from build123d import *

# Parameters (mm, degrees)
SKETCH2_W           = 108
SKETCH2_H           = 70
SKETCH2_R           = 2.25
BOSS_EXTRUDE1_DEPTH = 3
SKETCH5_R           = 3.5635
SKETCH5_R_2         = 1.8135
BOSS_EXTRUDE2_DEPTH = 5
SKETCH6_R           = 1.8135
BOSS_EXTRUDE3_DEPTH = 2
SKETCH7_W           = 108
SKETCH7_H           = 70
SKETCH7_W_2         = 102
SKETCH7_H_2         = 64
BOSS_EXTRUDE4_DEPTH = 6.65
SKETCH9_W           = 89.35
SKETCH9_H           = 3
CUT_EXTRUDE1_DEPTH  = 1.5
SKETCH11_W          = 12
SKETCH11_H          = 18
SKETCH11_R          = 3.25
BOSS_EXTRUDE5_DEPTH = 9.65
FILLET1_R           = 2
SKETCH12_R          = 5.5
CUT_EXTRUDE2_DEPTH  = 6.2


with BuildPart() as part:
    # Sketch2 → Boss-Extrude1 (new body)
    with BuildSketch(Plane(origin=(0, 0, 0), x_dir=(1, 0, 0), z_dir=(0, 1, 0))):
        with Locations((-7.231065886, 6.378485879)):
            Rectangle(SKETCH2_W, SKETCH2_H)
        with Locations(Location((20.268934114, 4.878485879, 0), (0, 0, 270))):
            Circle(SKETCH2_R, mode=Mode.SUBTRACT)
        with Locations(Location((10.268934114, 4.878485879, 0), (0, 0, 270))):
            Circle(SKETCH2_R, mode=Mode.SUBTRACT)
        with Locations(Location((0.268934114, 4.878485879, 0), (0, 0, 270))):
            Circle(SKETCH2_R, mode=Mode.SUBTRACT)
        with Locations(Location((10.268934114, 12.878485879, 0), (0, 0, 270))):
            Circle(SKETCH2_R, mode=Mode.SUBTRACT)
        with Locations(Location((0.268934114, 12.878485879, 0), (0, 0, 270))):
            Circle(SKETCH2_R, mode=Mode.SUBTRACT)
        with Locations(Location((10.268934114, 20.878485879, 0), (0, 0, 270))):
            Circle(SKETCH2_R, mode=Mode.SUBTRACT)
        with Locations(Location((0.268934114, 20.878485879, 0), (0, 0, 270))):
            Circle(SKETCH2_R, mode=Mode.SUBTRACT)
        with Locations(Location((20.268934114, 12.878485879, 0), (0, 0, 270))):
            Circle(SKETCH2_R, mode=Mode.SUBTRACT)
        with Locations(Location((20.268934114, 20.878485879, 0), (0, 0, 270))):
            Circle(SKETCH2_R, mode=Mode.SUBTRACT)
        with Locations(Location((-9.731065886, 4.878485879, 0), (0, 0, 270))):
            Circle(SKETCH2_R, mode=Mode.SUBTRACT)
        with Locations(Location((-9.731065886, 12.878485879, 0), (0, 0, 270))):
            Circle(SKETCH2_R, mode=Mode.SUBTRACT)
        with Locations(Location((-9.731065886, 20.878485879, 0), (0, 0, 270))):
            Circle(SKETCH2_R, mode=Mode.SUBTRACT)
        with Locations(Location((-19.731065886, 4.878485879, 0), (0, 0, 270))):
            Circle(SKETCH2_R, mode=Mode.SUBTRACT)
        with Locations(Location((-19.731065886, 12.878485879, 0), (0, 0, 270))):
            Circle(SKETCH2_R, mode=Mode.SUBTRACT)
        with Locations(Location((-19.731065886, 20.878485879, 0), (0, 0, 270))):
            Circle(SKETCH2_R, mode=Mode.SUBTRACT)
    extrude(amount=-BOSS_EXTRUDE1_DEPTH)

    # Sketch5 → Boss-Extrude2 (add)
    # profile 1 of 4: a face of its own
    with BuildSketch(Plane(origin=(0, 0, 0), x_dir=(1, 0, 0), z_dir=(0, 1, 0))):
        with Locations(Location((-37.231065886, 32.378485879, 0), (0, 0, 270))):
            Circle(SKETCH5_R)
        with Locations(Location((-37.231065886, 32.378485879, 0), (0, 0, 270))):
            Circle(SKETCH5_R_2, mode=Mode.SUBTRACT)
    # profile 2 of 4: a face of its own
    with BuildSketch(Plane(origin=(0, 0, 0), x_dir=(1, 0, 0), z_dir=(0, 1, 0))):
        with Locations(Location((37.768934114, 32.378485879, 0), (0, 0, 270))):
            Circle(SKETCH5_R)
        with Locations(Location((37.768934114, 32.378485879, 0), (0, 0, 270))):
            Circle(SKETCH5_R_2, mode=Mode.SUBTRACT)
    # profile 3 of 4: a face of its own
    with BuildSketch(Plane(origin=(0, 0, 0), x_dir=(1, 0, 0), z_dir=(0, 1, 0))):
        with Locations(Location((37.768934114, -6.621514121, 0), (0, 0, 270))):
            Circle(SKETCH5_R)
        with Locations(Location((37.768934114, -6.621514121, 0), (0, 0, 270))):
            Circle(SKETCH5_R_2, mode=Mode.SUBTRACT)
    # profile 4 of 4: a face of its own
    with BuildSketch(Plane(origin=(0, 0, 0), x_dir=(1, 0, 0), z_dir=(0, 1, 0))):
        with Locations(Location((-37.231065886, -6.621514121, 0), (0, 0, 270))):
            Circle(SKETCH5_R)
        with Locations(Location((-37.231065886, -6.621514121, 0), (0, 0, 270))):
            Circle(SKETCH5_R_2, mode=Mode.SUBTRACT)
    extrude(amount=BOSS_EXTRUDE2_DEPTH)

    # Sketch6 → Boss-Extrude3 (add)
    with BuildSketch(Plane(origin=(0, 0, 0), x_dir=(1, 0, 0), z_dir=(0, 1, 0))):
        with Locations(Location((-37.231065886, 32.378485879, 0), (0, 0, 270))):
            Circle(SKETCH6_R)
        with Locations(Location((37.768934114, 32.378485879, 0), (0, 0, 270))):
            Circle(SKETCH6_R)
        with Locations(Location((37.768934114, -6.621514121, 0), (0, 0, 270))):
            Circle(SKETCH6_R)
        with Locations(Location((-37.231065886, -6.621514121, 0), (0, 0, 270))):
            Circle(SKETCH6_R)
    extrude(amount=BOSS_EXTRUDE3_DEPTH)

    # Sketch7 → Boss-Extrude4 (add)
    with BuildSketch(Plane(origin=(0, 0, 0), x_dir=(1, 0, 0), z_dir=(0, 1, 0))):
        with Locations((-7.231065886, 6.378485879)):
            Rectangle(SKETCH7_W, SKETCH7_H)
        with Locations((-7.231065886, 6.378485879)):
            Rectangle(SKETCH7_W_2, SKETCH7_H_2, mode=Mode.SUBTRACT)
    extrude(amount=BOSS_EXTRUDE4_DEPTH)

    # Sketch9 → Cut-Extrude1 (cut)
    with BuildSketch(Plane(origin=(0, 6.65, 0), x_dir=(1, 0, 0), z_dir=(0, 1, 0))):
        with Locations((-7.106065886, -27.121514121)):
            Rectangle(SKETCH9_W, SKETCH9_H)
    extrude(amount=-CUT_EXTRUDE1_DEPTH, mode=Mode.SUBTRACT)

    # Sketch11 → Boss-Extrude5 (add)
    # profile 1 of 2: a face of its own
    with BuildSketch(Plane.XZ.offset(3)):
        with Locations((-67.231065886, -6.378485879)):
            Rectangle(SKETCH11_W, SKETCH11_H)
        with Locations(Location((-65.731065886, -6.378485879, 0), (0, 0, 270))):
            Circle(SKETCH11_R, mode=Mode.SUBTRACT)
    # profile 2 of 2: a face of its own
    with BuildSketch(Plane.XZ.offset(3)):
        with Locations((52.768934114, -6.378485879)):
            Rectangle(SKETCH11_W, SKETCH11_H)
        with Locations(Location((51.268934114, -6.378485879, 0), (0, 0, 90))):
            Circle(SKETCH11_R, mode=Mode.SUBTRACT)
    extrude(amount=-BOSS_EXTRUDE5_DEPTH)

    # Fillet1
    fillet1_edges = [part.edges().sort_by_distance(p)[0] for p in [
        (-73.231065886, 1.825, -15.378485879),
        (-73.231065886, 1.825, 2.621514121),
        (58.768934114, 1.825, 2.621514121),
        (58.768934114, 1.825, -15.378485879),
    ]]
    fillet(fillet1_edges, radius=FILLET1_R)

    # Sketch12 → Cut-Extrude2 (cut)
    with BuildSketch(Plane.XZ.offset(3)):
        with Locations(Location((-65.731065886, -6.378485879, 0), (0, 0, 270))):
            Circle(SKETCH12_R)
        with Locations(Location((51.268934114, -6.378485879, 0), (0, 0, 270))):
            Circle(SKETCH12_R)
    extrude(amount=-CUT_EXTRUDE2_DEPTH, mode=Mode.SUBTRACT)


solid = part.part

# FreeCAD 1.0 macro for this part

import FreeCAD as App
import Part
import Sketcher


def edges_at(feature, points):
    """Names of the edges that pass closest to the given points."""
    edges = feature.Shape.Edges
    near = lambda p: min(range(len(edges)), key=lambda i: edges[i].distToShape(Part.Vertex(*p))[0])
    return sorted({f"Edge{near(p) + 1}" for p in points})


def add_polygon(sketch, points):
    """Adds a closed chain of lines whose ends are joined by coincident constraints."""
    first, n = sketch.GeometryCount, len(points)
    for a, b in zip(points, points[1:] + points[:1]):
        sketch.addGeometry(Part.LineSegment(App.Vector(*a, 0), App.Vector(*b, 0)), False)
    for i in range(n):
        sketch.addConstraint(Sketcher.Constraint("Coincident", first + i, 2, first + (i + 1) % n, 1))

doc = App.newDocument("Part")
body = doc.addObject("PartDesign::Body", "Body")

sketch1 = body.newObject("Sketcher::SketchObject", "Sketch")
sketch1.AttachmentSupport = (doc.getObject("XZ_Plane"), [""])
sketch1.MapMode = "FlatFace"
add_polygon(sketch1, [(-61.2, -41.4), (-61.2, 28.6), (46.8, 28.6), (46.8, -41.4)])
sketch1.addGeometry(Part.Circle(App.Vector(-19.7, -4.9, 0), App.Vector(0, 0, 1), 2.2), False)
sketch1.addGeometry(Part.Circle(App.Vector(-9.7, -4.9, 0), App.Vector(0, 0, 1), 2.2), False)
sketch1.addGeometry(Part.Circle(App.Vector(0.3, -4.9, 0), App.Vector(0, 0, 1), 2.2), False)
sketch1.addGeometry(Part.Circle(App.Vector(10.3, -4.9, 0), App.Vector(0, 0, 1), 2.2), False)
sketch1.addGeometry(Part.Circle(App.Vector(20.3, -4.9, 0), App.Vector(0, 0, 1), 2.2), False)
sketch1.addGeometry(Part.Circle(App.Vector(-19.7, -12.9, 0), App.Vector(0, 0, 1), 2.2), False)
sketch1.addGeometry(Part.Circle(App.Vector(-9.7, -12.9, 0), App.Vector(0, 0, 1), 2.2), False)
sketch1.addGeometry(Part.Circle(App.Vector(-19.7, -20.9, 0), App.Vector(0, 0, 1), 2.2), False)
sketch1.addGeometry(Part.Circle(App.Vector(-9.7, -20.9, 0), App.Vector(0, 0, 1), 2.2), False)
sketch1.addGeometry(Part.Circle(App.Vector(0.3, -12.9, 0), App.Vector(0, 0, 1), 2.2), False)
sketch1.addGeometry(Part.Circle(App.Vector(10.3, -12.9, 0), App.Vector(0, 0, 1), 2.2), False)
sketch1.addGeometry(Part.Circle(App.Vector(20.3, -12.9, 0), App.Vector(0, 0, 1), 2.2), False)
sketch1.addGeometry(Part.Circle(App.Vector(0.3, -20.9, 0), App.Vector(0, 0, 1), 2.2), False)
sketch1.addGeometry(Part.Circle(App.Vector(10.3, -20.9, 0), App.Vector(0, 0, 1), 2.2), False)
sketch1.addGeometry(Part.Circle(App.Vector(20.3, -20.9, 0), App.Vector(0, 0, 1), 2.2), False)
sketch1.addConstraint(Sketcher.Constraint("Vertical", 0))
sketch1.addConstraint(Sketcher.Constraint("Horizontal", 1))
sketch1.addConstraint(Sketcher.Constraint("Vertical", 2))
sketch1.addConstraint(Sketcher.Constraint("Horizontal", 3))
sketch1.addConstraint(Sketcher.Constraint("Equal", 4, 5))
sketch1.addConstraint(Sketcher.Constraint("Equal", 5, 6))
sketch1.addConstraint(Sketcher.Constraint("Equal", 6, 7))
sketch1.addConstraint(Sketcher.Constraint("Equal", 7, 8))
sketch1.addConstraint(Sketcher.Constraint("Equal", 8, 9))
sketch1.addConstraint(Sketcher.Constraint("Equal", 9, 10))
sketch1.addConstraint(Sketcher.Constraint("Equal", 10, 11))
sketch1.addConstraint(Sketcher.Constraint("Equal", 11, 12))
sketch1.addConstraint(Sketcher.Constraint("Equal", 12, 13))
sketch1.addConstraint(Sketcher.Constraint("Equal", 13, 14))
sketch1.addConstraint(Sketcher.Constraint("Equal", 14, 15))
sketch1.addConstraint(Sketcher.Constraint("Equal", 15, 16))
sketch1.addConstraint(Sketcher.Constraint("Equal", 16, 17))
sketch1.addConstraint(Sketcher.Constraint("Equal", 17, 18))
sketch1.addConstraint(Sketcher.Constraint("Horizontal", 4, 3, 5, 3))
sketch1.addConstraint(Sketcher.Constraint("Horizontal", 5, 3, 6, 3))
sketch1.addConstraint(Sketcher.Constraint("Horizontal", 6, 3, 7, 3))
sketch1.addConstraint(Sketcher.Constraint("Horizontal", 7, 3, 8, 3))
sketch1.addConstraint(Sketcher.Constraint("Horizontal", 9, 3, 10, 3))
sketch1.addConstraint(Sketcher.Constraint("Horizontal", 11, 3, 12, 3))
sketch1.addConstraint(Sketcher.Constraint("Horizontal", 10, 3, 13, 3))
sketch1.addConstraint(Sketcher.Constraint("Horizontal", 13, 3, 14, 3))
sketch1.addConstraint(Sketcher.Constraint("Horizontal", 14, 3, 15, 3))
sketch1.addConstraint(Sketcher.Constraint("Horizontal", 12, 3, 16, 3))
sketch1.addConstraint(Sketcher.Constraint("Horizontal", 16, 3, 17, 3))
sketch1.addConstraint(Sketcher.Constraint("Horizontal", 17, 3, 18, 3))
sketch1.addConstraint(Sketcher.Constraint("Vertical", 4, 3, 9, 3))
sketch1.addConstraint(Sketcher.Constraint("Vertical", 5, 3, 10, 3))
sketch1.addConstraint(Sketcher.Constraint("Vertical", 9, 3, 11, 3))
sketch1.addConstraint(Sketcher.Constraint("Vertical", 10, 3, 12, 3))
sketch1.addConstraint(Sketcher.Constraint("Vertical", 6, 3, 13, 3))
sketch1.addConstraint(Sketcher.Constraint("Vertical", 7, 3, 14, 3))
sketch1.addConstraint(Sketcher.Constraint("Vertical", 8, 3, 15, 3))
sketch1.addConstraint(Sketcher.Constraint("Vertical", 13, 3, 16, 3))
sketch1.addConstraint(Sketcher.Constraint("Vertical", 14, 3, 17, 3))
sketch1.addConstraint(Sketcher.Constraint("Vertical", 15, 3, 18, 3))
sketch1.addConstraint(Sketcher.Constraint("Diameter", 4, 4.5))
sketch1.addConstraint(Sketcher.Constraint("DistanceX", 1, 1, 1, 2, 108.0))
sketch1.addConstraint(Sketcher.Constraint("DistanceY", 0, 1, 0, 2, 70.0))
sketch1.addConstraint(Sketcher.Constraint("DistanceX", 4, 3, 5, 3, 10.0))
sketch1.addConstraint(Sketcher.Constraint("DistanceX", 5, 3, 6, 3, 10.0))
sketch1.addConstraint(Sketcher.Constraint("DistanceX", 6, 3, 7, 3, 10.0))
sketch1.addConstraint(Sketcher.Constraint("DistanceX", 7, 3, 8, 3, 10.0))
sketch1.addConstraint(Sketcher.Constraint("DistanceY", 9, 3, 4, 3, 8.0))
sketch1.addConstraint(Sketcher.Constraint("DistanceY", 11, 3, 9, 3, 8.0))
sketch1.addConstraint(Sketcher.Constraint("DistanceX", 0, 2, 4, 3, 41.5))
sketch1.addConstraint(Sketcher.Constraint("DistanceY", 4, 3, 0, 2, 33.5))
sketch1.addConstraint(Sketcher.Constraint("DistanceX", 4, 3, -1, 1, 19.731066))
sketch1.addConstraint(Sketcher.Constraint("DistanceY", 4, 3, -1, 1, 4.878486))
pad1 = body.newObject("PartDesign::Pad", "Pad")
pad1.Profile = sketch1
pad1.Length = 3

sketch2 = body.newObject("Sketcher::SketchObject", "Sketch001")
sketch2.AttachmentSupport = (doc.getObject("XZ_Plane"), [""])
sketch2.MapMode = "FlatFace"
sketch2.addGeometry(Part.Circle(App.Vector(-37.2, -32.4, 0), App.Vector(0, 0, 1), 3.6), False)
sketch2.addGeometry(Part.Circle(App.Vector(-37.2, -32.4, 0), App.Vector(0, 0, 1), 1.8), False)
sketch2.addGeometry(Part.Circle(App.Vector(37.8, -32.4, 0), App.Vector(0, 0, 1), 3.6), False)
sketch2.addGeometry(Part.Circle(App.Vector(37.8, -32.4, 0), App.Vector(0, 0, 1), 1.8), False)
sketch2.addGeometry(Part.Circle(App.Vector(37.8, 6.6, 0), App.Vector(0, 0, 1), 3.6), False)
sketch2.addGeometry(Part.Circle(App.Vector(37.8, 6.6, 0), App.Vector(0, 0, 1), 1.8), False)
sketch2.addGeometry(Part.Circle(App.Vector(-37.2, 6.6, 0), App.Vector(0, 0, 1), 3.6), False)
sketch2.addGeometry(Part.Circle(App.Vector(-37.2, 6.6, 0), App.Vector(0, 0, 1), 1.8), False)
sketch2.addConstraint(Sketcher.Constraint("Coincident", 1, 3, 0, 3))
sketch2.addConstraint(Sketcher.Constraint("Coincident", 3, 3, 2, 3))
sketch2.addConstraint(Sketcher.Constraint("Coincident", 5, 3, 4, 3))
sketch2.addConstraint(Sketcher.Constraint("Coincident", 7, 3, 6, 3))
sketch2.addConstraint(Sketcher.Constraint("Equal", 0, 2))
sketch2.addConstraint(Sketcher.Constraint("Equal", 1, 3))
sketch2.addConstraint(Sketcher.Constraint("Equal", 2, 4))
sketch2.addConstraint(Sketcher.Constraint("Equal", 3, 5))
sketch2.addConstraint(Sketcher.Constraint("Equal", 4, 6))
sketch2.addConstraint(Sketcher.Constraint("Equal", 5, 7))
sketch2.addConstraint(Sketcher.Constraint("Horizontal", 1, 3, 2, 3))
sketch2.addConstraint(Sketcher.Constraint("Horizontal", 5, 3, 6, 3))
sketch2.addConstraint(Sketcher.Constraint("Vertical", 3, 3, 4, 3))
sketch2.addConstraint(Sketcher.Constraint("Vertical", 1, 3, 6, 3))
sketch2.addConstraint(Sketcher.Constraint("Diameter", 0, 7.127))
sketch2.addConstraint(Sketcher.Constraint("Diameter", 1, 3.627))
sketch2.addConstraint(Sketcher.Constraint("DistanceX", 0, 3, 2, 3, 75.0))
sketch2.addConstraint(Sketcher.Constraint("DistanceY", 2, 3, 4, 3, 39.0))
sketch2.addConstraint(Sketcher.Constraint("DistanceX", 0, 3, -1, 1, 37.231066))
sketch2.addConstraint(Sketcher.Constraint("DistanceY", 0, 3, -1, 1, 32.378486))
pad2 = body.newObject("PartDesign::Pad", "Pad001")
pad2.Profile = sketch2
pad2.Length = 5
pad2.Reversed = True

sketch3 = body.newObject("Sketcher::SketchObject", "Sketch002")
sketch3.AttachmentSupport = (doc.getObject("XZ_Plane"), [""])
sketch3.MapMode = "FlatFace"
sketch3.addGeometry(Part.Circle(App.Vector(-37.2, -32.4, 0), App.Vector(0, 0, 1), 1.8), False)
sketch3.addGeometry(Part.Circle(App.Vector(37.8, -32.4, 0), App.Vector(0, 0, 1), 1.8), False)
sketch3.addGeometry(Part.Circle(App.Vector(37.8, 6.6, 0), App.Vector(0, 0, 1), 1.8), False)
sketch3.addGeometry(Part.Circle(App.Vector(-37.2, 6.6, 0), App.Vector(0, 0, 1), 1.8), False)
sketch3.addConstraint(Sketcher.Constraint("Equal", 0, 1))
sketch3.addConstraint(Sketcher.Constraint("Equal", 1, 2))
sketch3.addConstraint(Sketcher.Constraint("Equal", 2, 3))
sketch3.addConstraint(Sketcher.Constraint("Horizontal", 0, 3, 1, 3))
sketch3.addConstraint(Sketcher.Constraint("Horizontal", 2, 3, 3, 3))
sketch3.addConstraint(Sketcher.Constraint("Vertical", 1, 3, 2, 3))
sketch3.addConstraint(Sketcher.Constraint("Vertical", 0, 3, 3, 3))
sketch3.addConstraint(Sketcher.Constraint("Diameter", 0, 3.627))
sketch3.addConstraint(Sketcher.Constraint("DistanceX", 0, 3, 1, 3, 75.0))
sketch3.addConstraint(Sketcher.Constraint("DistanceY", 1, 3, 2, 3, 39.0))
sketch3.addConstraint(Sketcher.Constraint("DistanceX", 0, 3, -1, 1, 37.231066))
sketch3.addConstraint(Sketcher.Constraint("DistanceY", 0, 3, -1, 1, 32.378486))
pad3 = body.newObject("PartDesign::Pad", "Pad002")
pad3.Profile = sketch3
pad3.Length = 2
pad3.Reversed = True

sketch4 = body.newObject("Sketcher::SketchObject", "Sketch003")
sketch4.AttachmentSupport = (doc.getObject("XZ_Plane"), [""])
sketch4.MapMode = "FlatFace"
add_polygon(sketch4, [(-61, -41), (-61, 29), (47, 29), (47, -41)])
add_polygon(sketch4, [(44, 26), (-58, 26), (-58, -38), (44, -38)])
sketch4.addConstraint(Sketcher.Constraint("Vertical", 0))
sketch4.addConstraint(Sketcher.Constraint("Horizontal", 1))
sketch4.addConstraint(Sketcher.Constraint("Vertical", 2))
sketch4.addConstraint(Sketcher.Constraint("Horizontal", 3))
sketch4.addConstraint(Sketcher.Constraint("Horizontal", 4))
sketch4.addConstraint(Sketcher.Constraint("Vertical", 5))
sketch4.addConstraint(Sketcher.Constraint("Horizontal", 6))
sketch4.addConstraint(Sketcher.Constraint("Vertical", 7))
sketch4.addConstraint(Sketcher.Constraint("DistanceX", 1, 1, 1, 2, 108.0))
sketch4.addConstraint(Sketcher.Constraint("DistanceX", 4, 2, 4, 1, 102.0))
sketch4.addConstraint(Sketcher.Constraint("DistanceY", 0, 1, 0, 2, 70.0))
sketch4.addConstraint(Sketcher.Constraint("DistanceY", 5, 2, 5, 1, 64.0))
sketch4.addConstraint(Sketcher.Constraint("DistanceX", 0, 2, 4, 2, 3.0))
sketch4.addConstraint(Sketcher.Constraint("DistanceY", 4, 2, 0, 2, 3.0))
sketch4.addConstraint(Sketcher.Constraint("DistanceX", 0, 2, -1, 1, 61.231066))
sketch4.addConstraint(Sketcher.Constraint("DistanceY", -1, 1, 0, 2, 28.621514))
pad4 = body.newObject("PartDesign::Pad", "Pad003")
pad4.Profile = sketch4
pad4.Length = 6.65
pad4.Reversed = True

sketch5 = body.newObject("Sketcher::SketchObject", "Sketch004")
sketch5.AttachmentSupport = (doc.getObject("XZ_Plane"), [""])
sketch5.MapMode = "FlatFace"
sketch5.AttachmentOffset = App.Placement(App.Vector(0, 0, -6.65), App.Rotation())
add_polygon(sketch5, [(-51.8, 25.6), (-51.8, 28.6), (37.6, 28.6), (37.6, 25.6)])
sketch5.addConstraint(Sketcher.Constraint("Vertical", 0))
sketch5.addConstraint(Sketcher.Constraint("Horizontal", 1))
sketch5.addConstraint(Sketcher.Constraint("Vertical", 2))
sketch5.addConstraint(Sketcher.Constraint("Horizontal", 3))
sketch5.addConstraint(Sketcher.Constraint("DistanceY", 0, 1, 0, 2, 3.0))
sketch5.addConstraint(Sketcher.Constraint("DistanceX", 1, 1, 1, 2, 89.35))
sketch5.addConstraint(Sketcher.Constraint("DistanceX", 0, 2, -1, 1, 51.781066))
sketch5.addConstraint(Sketcher.Constraint("DistanceY", -1, 1, 0, 2, 28.621514))
pocket1 = body.newObject("PartDesign::Pocket", "Pocket")
pocket1.Profile = sketch5
pocket1.Length = 1.5
pocket1.Reversed = True

sketch6 = body.newObject("Sketcher::SketchObject", "Sketch005")
sketch6.AttachmentSupport = (doc.getObject("XZ_Plane"), [""])
sketch6.MapMode = "FlatFace"
sketch6.AttachmentOffset = App.Placement(App.Vector(0, 0, 3), App.Rotation())
add_polygon(sketch6, [(-73.2, 2.6), (-73.2, -15.4), (-61.2, -15.4), (-61.2, 2.6)])
sketch6.addGeometry(Part.Circle(App.Vector(-65.7, -6.4, 0), App.Vector(0, 0, 1), 3.2), False)
add_polygon(sketch6, [(46.8, 2.6), (46.8, -15.4), (58.8, -15.4), (58.8, 2.6)])
sketch6.addGeometry(Part.Circle(App.Vector(51.3, -6.4, 0), App.Vector(0, 0, 1), 3.2), False)
sketch6.addConstraint(Sketcher.Constraint("Vertical", 0))
sketch6.addConstraint(Sketcher.Constraint("Horizontal", 1))
sketch6.addConstraint(Sketcher.Constraint("Vertical", 2))
sketch6.addConstraint(Sketcher.Constraint("Horizontal", 3))
sketch6.addConstraint(Sketcher.Constraint("Vertical", 5))
sketch6.addConstraint(Sketcher.Constraint("Horizontal", 6))
sketch6.addConstraint(Sketcher.Constraint("Vertical", 7))
sketch6.addConstraint(Sketcher.Constraint("Horizontal", 8))
sketch6.addConstraint(Sketcher.Constraint("Equal", 4, 9))
sketch6.addConstraint(Sketcher.Constraint("Horizontal", 4, 3, 9, 3))
sketch6.addConstraint(Sketcher.Constraint("Horizontal", 1, 2, 5, 2))
sketch6.addConstraint(Sketcher.Constraint("Horizontal", 3, 2, 7, 2))
sketch6.addConstraint(Sketcher.Constraint("Equal", 3, 6))
sketch6.addConstraint(Sketcher.Constraint("Diameter", 4, 6.5))
sketch6.addConstraint(Sketcher.Constraint("DistanceX", 1, 1, 1, 2, 12.0))
sketch6.addConstraint(Sketcher.Constraint("DistanceY", 0, 2, 0, 1, 18.0))
sketch6.addConstraint(Sketcher.Constraint("DistanceX", 4, 3, 9, 3, 117.0))
sketch6.addConstraint(Sketcher.Constraint("DistanceY", 0, 2, 4, 3, 9.0))
sketch6.addConstraint(Sketcher.Constraint("DistanceX", 1, 2, 5, 2, 108.0))
sketch6.addConstraint(Sketcher.Constraint("DistanceX", 0, 2, 4, 3, 7.5))
sketch6.addConstraint(Sketcher.Constraint("DistanceX", 4, 3, -1, 1, 65.731066))
sketch6.addConstraint(Sketcher.Constraint("DistanceY", 4, 3, -1, 1, 6.378486))
pad5 = body.newObject("PartDesign::Pad", "Pad004")
pad5.Profile = sketch6
pad5.Length = 9.65
pad5.Reversed = True
doc.recompute()

fillet = body.newObject("PartDesign::Fillet", "Fillet")
fillet.Base = (pad5, edges_at(pad5, [
    (-73.231, 1.825, -15.378),
    (-73.231, 1.825, 2.622),
    (58.769, 1.825, 2.622),
    (58.769, 1.825, -15.378),
]))
fillet.Radius = 2

sketch7 = body.newObject("Sketcher::SketchObject", "Sketch006")
sketch7.AttachmentSupport = (doc.getObject("XZ_Plane"), [""])
sketch7.MapMode = "FlatFace"
sketch7.AttachmentOffset = App.Placement(App.Vector(0, 0, 3), App.Rotation())
sketch7.addGeometry(Part.Circle(App.Vector(-66, -6, 0), App.Vector(0, 0, 1), 6), False)
sketch7.addGeometry(Part.Circle(App.Vector(51, -6, 0), App.Vector(0, 0, 1), 6), False)
sketch7.addConstraint(Sketcher.Constraint("Equal", 0, 1))
sketch7.addConstraint(Sketcher.Constraint("Horizontal", 0, 3, 1, 3))
sketch7.addConstraint(Sketcher.Constraint("Diameter", 0, 11.0))
sketch7.addConstraint(Sketcher.Constraint("DistanceX", 0, 3, 1, 3, 117.0))
sketch7.addConstraint(Sketcher.Constraint("DistanceX", 0, 3, -1, 1, 65.731066))
sketch7.addConstraint(Sketcher.Constraint("DistanceY", 0, 3, -1, 1, 6.378486))
pocket2 = body.newObject("PartDesign::Pocket", "Pocket001")
pocket2.Profile = sketch7
pocket2.Length = 6.2

doc.recompute()
